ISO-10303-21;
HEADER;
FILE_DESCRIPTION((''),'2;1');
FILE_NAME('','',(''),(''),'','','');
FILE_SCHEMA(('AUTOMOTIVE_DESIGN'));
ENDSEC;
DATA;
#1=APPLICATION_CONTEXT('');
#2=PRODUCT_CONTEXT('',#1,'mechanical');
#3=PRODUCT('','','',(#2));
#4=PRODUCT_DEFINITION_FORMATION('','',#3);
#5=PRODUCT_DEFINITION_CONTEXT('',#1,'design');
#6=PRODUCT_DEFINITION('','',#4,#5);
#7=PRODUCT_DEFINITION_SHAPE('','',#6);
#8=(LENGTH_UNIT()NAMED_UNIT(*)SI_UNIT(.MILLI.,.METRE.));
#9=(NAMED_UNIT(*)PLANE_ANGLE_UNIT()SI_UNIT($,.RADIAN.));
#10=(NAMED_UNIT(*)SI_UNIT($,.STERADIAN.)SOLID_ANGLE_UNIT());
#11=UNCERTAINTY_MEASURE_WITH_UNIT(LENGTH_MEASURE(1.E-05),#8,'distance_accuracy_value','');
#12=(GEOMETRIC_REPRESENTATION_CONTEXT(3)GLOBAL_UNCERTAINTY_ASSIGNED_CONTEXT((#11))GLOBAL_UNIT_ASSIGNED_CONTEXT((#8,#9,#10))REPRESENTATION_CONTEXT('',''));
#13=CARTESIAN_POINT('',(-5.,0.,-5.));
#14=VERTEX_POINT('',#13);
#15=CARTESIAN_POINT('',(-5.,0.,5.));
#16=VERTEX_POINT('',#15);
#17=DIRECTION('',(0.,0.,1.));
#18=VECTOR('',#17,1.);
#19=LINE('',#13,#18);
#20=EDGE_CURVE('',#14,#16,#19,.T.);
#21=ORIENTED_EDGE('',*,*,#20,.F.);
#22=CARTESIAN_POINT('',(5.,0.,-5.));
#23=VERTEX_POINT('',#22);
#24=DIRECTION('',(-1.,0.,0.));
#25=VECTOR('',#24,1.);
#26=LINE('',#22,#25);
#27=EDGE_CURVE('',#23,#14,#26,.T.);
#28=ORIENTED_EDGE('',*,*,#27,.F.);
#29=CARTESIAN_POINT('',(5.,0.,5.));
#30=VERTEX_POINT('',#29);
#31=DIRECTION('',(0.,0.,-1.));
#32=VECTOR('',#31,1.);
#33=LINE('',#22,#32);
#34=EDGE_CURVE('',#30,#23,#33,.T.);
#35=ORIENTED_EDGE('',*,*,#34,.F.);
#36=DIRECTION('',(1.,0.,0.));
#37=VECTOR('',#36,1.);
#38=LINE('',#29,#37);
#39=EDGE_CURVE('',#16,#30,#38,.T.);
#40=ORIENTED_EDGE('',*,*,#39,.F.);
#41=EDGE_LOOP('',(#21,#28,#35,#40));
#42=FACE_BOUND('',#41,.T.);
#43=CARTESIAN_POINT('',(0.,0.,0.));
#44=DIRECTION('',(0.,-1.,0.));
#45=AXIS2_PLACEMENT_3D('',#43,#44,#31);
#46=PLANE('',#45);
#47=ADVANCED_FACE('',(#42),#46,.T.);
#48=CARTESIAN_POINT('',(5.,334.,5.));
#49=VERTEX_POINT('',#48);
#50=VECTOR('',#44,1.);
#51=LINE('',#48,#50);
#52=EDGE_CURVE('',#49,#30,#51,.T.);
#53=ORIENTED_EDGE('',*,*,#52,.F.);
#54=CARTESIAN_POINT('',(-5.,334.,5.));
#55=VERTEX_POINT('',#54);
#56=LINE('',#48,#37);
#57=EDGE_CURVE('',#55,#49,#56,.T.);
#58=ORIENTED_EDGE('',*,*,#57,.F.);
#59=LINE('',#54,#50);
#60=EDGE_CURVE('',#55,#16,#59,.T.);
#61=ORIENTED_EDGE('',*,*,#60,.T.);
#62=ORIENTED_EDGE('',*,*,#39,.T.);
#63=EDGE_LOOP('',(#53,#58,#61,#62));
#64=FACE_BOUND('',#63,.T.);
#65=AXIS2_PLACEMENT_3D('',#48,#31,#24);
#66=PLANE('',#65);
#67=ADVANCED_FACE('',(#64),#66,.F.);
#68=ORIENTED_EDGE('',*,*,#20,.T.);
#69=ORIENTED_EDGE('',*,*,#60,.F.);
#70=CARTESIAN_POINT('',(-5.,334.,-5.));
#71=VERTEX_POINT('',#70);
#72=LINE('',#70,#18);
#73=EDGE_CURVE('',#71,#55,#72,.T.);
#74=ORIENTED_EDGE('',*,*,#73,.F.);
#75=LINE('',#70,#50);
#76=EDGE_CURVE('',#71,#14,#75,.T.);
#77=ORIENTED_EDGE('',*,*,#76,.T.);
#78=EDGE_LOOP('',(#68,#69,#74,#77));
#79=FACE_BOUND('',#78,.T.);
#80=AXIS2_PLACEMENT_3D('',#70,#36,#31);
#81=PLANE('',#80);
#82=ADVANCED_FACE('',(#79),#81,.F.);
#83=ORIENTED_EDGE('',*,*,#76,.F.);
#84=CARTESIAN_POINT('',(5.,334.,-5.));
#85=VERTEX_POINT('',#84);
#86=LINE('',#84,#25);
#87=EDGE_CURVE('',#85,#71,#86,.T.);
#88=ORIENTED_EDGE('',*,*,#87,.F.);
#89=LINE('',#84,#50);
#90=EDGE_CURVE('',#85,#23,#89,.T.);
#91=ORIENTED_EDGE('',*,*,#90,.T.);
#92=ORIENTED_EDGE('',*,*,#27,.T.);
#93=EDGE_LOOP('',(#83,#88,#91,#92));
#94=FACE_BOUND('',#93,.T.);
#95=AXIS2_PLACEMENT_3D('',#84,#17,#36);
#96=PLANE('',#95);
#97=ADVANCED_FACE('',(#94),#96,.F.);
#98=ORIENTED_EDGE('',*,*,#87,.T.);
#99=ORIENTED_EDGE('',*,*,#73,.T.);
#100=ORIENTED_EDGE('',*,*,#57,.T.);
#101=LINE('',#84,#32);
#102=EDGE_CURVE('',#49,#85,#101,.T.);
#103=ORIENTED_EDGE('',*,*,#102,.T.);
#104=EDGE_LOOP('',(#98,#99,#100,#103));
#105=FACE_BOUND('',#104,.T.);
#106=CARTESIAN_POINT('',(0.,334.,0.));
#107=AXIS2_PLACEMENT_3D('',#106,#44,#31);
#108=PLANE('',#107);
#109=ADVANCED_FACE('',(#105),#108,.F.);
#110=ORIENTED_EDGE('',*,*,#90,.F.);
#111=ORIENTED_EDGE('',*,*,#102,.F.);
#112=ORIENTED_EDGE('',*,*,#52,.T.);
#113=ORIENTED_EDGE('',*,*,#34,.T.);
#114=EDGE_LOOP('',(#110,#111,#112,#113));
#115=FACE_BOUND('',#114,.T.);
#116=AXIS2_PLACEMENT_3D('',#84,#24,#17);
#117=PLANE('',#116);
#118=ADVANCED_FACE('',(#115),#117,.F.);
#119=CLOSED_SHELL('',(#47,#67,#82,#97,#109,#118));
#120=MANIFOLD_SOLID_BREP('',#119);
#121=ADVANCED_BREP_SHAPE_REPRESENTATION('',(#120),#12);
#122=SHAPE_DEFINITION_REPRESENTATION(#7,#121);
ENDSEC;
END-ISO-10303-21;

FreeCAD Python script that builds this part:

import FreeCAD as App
import Part
import Sketcher


def add_polygon(sketch, points):
    """Adds a closed chain of lines whose ends are joined by coincident constraints."""
    first, n = sketch.GeometryCount, len(points)
    for a, b in zip(points, points[1:] + points[:1]):
        sketch.addGeometry(Part.LineSegment(App.Vector(*a, 0), App.Vector(*b, 0)), False)
    for i in range(n):
        sketch.addConstraint(Sketcher.Constraint("Coincident", first + i, 2, first + (i + 1) % n, 1))

doc = App.newDocument("Part")
body = doc.addObject("PartDesign::Body", "Body")

# Sketch on XZ plane
sketch1 = body.newObject("Sketcher::SketchObject", "Sketch")
sketch1.AttachmentSupport = (doc.getObject("XZ_Plane"), [""])
sketch1.MapMode = "FlatFace"
add_polygon(sketch1, [(-5, -5), (-5, 5), (5, 5), (5, -5)])  # lines 0-3
sketch1.addConstraint(Sketcher.Constraint("Vertical", 0))
sketch1.addConstraint(Sketcher.Constraint("Horizontal", 1))
sketch1.addConstraint(Sketcher.Constraint("Vertical", 2))
sketch1.addConstraint(Sketcher.Constraint("Horizontal", 3))
sketch1.addConstraint(Sketcher.Constraint("Symmetric", 0, 2, 2, 2, -1, 1))
sketch1.addConstraint(Sketcher.Constraint("Equal", 3, 0))
sketch1.addConstraint(Sketcher.Constraint("DistanceX", 1, 1, 1, 2, 10.0))
pad1 = body.newObject("PartDesign::Pad", "Pad")
pad1.Profile = sketch1
pad1.Length = 334
pad1.Reversed = True

doc.recompute()
